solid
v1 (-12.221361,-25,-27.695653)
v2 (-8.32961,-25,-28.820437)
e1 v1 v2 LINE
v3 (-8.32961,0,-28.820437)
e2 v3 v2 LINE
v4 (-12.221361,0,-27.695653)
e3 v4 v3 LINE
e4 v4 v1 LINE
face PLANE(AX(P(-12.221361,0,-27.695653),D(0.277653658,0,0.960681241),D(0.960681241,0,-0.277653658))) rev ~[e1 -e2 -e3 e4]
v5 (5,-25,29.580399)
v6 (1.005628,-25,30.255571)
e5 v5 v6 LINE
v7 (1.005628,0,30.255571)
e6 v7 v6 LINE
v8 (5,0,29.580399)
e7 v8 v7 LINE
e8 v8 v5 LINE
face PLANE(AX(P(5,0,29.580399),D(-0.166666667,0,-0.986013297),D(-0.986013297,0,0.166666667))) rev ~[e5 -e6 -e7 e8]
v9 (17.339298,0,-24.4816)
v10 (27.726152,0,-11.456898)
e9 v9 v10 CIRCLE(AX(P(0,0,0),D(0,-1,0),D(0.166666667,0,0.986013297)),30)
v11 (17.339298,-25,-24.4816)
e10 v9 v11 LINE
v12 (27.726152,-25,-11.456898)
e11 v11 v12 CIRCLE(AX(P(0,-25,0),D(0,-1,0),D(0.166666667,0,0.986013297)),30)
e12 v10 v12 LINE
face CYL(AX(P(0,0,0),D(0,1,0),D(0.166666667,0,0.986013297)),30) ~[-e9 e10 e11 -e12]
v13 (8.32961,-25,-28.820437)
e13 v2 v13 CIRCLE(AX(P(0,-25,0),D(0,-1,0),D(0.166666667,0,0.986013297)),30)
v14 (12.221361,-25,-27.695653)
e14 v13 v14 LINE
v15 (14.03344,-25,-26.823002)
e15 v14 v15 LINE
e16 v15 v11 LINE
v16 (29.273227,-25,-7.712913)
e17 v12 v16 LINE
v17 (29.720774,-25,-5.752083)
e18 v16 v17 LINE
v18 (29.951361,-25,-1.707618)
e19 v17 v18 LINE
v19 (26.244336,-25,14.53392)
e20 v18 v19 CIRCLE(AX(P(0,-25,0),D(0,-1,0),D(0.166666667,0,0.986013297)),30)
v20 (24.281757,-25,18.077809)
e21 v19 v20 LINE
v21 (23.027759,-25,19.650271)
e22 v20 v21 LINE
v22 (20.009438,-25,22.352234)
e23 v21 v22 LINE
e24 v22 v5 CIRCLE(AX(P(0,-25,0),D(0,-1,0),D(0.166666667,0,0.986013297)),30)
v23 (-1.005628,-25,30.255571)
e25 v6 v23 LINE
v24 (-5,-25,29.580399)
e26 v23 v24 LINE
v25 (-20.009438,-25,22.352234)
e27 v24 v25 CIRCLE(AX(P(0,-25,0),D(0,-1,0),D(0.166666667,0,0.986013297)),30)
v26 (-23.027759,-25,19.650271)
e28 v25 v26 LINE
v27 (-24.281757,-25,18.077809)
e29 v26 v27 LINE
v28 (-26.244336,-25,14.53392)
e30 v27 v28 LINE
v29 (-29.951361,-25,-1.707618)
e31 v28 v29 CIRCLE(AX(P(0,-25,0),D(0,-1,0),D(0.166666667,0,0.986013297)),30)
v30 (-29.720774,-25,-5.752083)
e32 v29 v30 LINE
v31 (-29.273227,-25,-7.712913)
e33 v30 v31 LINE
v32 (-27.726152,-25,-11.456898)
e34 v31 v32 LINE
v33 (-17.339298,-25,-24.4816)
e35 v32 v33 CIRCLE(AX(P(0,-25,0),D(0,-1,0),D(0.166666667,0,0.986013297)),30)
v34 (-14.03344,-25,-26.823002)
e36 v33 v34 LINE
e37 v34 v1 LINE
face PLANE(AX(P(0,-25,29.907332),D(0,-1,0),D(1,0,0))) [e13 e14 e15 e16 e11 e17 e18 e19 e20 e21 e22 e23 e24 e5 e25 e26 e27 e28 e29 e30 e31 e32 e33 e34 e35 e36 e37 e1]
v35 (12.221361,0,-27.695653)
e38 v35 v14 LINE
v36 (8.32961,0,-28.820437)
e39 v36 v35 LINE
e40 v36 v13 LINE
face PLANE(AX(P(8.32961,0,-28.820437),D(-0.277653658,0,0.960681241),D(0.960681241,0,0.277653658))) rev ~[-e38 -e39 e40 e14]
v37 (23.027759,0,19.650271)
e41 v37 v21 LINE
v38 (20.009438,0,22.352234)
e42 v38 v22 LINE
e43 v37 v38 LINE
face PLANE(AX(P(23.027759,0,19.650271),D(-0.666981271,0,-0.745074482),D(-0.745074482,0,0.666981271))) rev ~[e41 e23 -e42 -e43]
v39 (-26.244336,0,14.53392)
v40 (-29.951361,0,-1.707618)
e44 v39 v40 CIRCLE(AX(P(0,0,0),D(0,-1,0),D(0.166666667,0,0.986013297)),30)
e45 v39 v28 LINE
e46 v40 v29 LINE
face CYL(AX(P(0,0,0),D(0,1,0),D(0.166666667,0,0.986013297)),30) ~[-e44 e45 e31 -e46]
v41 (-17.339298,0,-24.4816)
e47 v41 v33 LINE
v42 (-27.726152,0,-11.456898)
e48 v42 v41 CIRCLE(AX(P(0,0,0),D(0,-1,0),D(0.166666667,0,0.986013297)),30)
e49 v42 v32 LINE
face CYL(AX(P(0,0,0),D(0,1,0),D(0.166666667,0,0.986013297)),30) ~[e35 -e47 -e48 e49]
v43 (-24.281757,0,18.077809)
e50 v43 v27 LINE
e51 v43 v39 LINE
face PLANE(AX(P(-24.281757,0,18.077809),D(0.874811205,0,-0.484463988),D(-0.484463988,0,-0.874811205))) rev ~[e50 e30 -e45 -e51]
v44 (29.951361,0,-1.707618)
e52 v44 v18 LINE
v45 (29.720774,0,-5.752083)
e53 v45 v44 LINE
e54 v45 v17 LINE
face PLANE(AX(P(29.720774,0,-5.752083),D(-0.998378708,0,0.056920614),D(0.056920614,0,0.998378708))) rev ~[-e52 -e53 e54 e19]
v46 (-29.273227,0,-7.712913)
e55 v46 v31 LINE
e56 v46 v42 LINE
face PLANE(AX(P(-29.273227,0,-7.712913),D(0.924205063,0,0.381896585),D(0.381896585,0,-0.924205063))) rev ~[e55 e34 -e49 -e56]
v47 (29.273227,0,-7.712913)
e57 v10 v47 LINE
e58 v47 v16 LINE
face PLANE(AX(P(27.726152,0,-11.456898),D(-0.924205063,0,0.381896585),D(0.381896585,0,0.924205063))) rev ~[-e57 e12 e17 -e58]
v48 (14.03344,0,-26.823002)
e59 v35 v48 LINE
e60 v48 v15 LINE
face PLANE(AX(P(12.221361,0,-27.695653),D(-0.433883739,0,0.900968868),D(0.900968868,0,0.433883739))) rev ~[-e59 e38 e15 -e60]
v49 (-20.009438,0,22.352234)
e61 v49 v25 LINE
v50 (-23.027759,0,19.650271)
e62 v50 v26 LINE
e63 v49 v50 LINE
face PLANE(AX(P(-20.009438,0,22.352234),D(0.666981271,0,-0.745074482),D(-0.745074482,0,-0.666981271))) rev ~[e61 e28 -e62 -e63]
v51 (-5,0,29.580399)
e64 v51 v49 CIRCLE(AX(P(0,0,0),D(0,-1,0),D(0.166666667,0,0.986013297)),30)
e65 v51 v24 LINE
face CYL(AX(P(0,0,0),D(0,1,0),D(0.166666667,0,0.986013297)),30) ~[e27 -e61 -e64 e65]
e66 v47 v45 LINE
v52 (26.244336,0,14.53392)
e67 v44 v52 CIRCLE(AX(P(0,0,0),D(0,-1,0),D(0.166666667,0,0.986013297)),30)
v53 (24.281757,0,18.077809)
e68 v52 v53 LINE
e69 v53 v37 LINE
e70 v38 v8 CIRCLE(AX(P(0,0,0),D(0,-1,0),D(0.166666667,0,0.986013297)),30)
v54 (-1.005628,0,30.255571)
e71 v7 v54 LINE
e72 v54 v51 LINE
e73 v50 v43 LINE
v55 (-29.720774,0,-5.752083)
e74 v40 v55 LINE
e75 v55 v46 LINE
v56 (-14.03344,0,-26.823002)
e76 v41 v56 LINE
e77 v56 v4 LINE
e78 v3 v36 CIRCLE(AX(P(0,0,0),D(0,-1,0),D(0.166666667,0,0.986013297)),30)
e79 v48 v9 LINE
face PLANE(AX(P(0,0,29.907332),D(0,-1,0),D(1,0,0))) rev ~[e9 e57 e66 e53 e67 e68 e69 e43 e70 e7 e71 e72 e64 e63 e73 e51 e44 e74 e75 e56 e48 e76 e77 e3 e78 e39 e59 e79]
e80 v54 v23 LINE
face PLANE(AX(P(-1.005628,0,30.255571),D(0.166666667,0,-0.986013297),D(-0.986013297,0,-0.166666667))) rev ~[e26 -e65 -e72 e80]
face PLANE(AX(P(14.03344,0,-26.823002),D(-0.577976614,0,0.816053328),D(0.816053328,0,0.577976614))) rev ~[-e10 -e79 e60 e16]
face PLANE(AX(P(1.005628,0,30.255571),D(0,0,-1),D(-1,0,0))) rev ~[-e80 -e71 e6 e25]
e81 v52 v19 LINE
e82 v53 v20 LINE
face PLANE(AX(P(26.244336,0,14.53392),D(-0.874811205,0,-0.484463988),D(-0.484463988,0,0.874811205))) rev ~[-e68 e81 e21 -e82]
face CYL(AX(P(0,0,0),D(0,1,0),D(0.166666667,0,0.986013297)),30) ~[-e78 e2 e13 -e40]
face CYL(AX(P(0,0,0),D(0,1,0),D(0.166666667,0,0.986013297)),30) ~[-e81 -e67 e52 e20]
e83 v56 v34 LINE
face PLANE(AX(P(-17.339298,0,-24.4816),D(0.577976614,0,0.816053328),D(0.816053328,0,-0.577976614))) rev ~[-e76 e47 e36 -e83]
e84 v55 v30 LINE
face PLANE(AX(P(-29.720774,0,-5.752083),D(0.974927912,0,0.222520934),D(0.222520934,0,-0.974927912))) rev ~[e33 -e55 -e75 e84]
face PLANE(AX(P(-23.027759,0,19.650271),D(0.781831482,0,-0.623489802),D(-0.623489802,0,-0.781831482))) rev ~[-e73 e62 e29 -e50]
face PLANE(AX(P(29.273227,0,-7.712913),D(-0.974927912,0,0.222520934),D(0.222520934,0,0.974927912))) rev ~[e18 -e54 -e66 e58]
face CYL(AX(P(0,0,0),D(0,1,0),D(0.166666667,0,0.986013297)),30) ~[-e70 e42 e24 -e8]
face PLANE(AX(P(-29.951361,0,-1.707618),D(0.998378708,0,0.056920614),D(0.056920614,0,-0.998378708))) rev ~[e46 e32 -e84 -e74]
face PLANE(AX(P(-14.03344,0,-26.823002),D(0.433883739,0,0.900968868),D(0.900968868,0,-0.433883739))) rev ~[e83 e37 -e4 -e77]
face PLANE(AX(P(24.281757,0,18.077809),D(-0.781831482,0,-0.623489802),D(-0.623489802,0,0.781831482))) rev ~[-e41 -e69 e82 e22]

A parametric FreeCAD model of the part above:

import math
import FreeCAD as App
import Part
import Sketcher

V = App.Vector
Q = App.Units.Quantity

doc = App.newDocument("Part")
params = doc.addObject("Spreadsheet::Sheet", "Params")
for row, (alias, value) in enumerate([
    ("sketch1_diameter", "60 mm"),
    ("pad1_length", "25 mm"),
    ("sketch2_radius", "30 mm"),
    ("pad2_length", "25 mm"),
], start=1):
    params.set(f"A{row}", alias)
    params.set(f"B{row}", "=" + value)
    params.setAlias(f"B{row}", alias)

body = doc.addObject("PartDesign::Body", "Body")

sketch1 = body.newObject("Sketcher::SketchObject", "Sketch")
sketch1.AttachmentSupport = (doc.getObject("XZ_Plane"), [""])
sketch1.MapMode = "FlatFace"
sketch1.addGeometry(Part.Circle(V(0, 0, 0), V(0, 0, 1), 30), False)
sketch1.addConstraint([
    Sketcher.Constraint("Coincident", 0, 3, -1, 1),
    Sketcher.Constraint("Diameter", 0, Q("60 mm")),
])
sketch1.setExpression("Constraints[1]", "Params.sketch1_diameter")
pad1 = body.newObject("PartDesign::Pad", "Pad")
pad1.Profile = sketch1
pad1.setExpression("Length", "Params.pad1_length")
body2 = doc.addObject("PartDesign::Body", "Body001")

sketch2 = body2.newObject("Sketcher::SketchObject", "Sketch001")
sketch2.AttachmentSupport = (doc.getObject("XZ_Plane001"), [""])
sketch2.MapMode = "FlatFace"
sketch2.addGeometry([
    Part.ArcOfCircle(Part.Circle(V(0, 0, 0), V(0, 0, 1), 30), math.radians(80.41), math.radians(99.59)),
    Part.LineSegment(V(5, 29.6, 0), V(1, 30.3, 0)),
    Part.LineSegment(V(1, 30.3, 0), V(-1, 30.3, 0)),
    Part.LineSegment(V(-1, 30.3, 0), V(-5, 29.6, 0)),
], False)
sketch2.addConstraint([
    Sketcher.Constraint("Tangent", 0, 1, 1, 1),
    Sketcher.Constraint("Coincident", 1, 2, 2, 1),
    Sketcher.Constraint("Coincident", 2, 2, 3, 1),
    Sketcher.Constraint("Tangent", 3, 2, 0, 2),
    Sketcher.Constraint("Horizontal", 2),
    Sketcher.Constraint("Coincident", 0, 3, -1, 1),
    Sketcher.Constraint("Horizontal", 0, 1, 3, 2),
    Sketcher.Constraint("Radius", 0, Q("30 mm")),
    Sketcher.Constraint("DistanceX", -1, 1, 0, 1, Q("5 mm")),
    Sketcher.Constraint("DistanceX", 2, 2, 2, 1, Q("2.011256 mm")),
])
sketch2.setExpression("Constraints[7]", "Params.sketch2_radius")
pad2 = body2.newObject("PartDesign::Pad", "Pad001")
pad2.Profile = sketch2
pad2.setExpression("Length", "Params.pad2_length")
body3 = doc.addObject("PartDesign::Body", "Body002")
doc.recompute()

body3.BaseFeature = body
doc.recompute()

body4 = doc.addObject("PartDesign::Body", "Body003")
body4.BaseFeature = body2
boolean = body3.newObject("PartDesign::Boolean", "Boolean")
boolean.Type = "Fuse"
boolean.addObjects([body4])
doc.recompute()

body5 = doc.addObject("PartDesign::Body", "Body004")
body5.BaseFeature = body2
body5.Placement = App.Placement(V(0, 0, 0), App.Rotation(V(0, 1, 0), 51.428571))
boolean2 = body3.newObject("PartDesign::Boolean", "Boolean001")
boolean2.Type = "Fuse"
boolean2.addObjects([body5])
doc.recompute()

body6 = doc.addObject("PartDesign::Body", "Body005")
body6.BaseFeature = body
body6.Placement = App.Placement(V(0, 0, 0), App.Rotation(V(0, 1, 0), 51.428571))
boolean3 = body3.newObject("PartDesign::Boolean", "Boolean002")
boolean3.Type = "Fuse"
boolean3.addObjects([body6])
doc.recompute()

body7 = doc.addObject("PartDesign::Body", "Body006")
body7.BaseFeature = body2
body7.Placement = App.Placement(V(0, 0, 0), App.Rotation(V(0, 1, 0), 102.857143))
boolean4 = body3.newObject("PartDesign::Boolean", "Boolean003")
boolean4.Type = "Fuse"
boolean4.addObjects([body7])
doc.recompute()

body8 = doc.addObject("PartDesign::Body", "Body007")
body8.BaseFeature = body
body8.Placement = App.Placement(V(0, 0, 0), App.Rotation(V(0, 1, 0), 102.857143))
boolean5 = body3.newObject("PartDesign::Boolean", "Boolean004")
boolean5.Type = "Fuse"
boolean5.addObjects([body8])
doc.recompute()

body9 = doc.addObject("PartDesign::Body", "Body008")
body9.BaseFeature = body2
body9.Placement = App.Placement(V(0, 0, 0), App.Rotation(V(0, 1, 0), 154.285714))
boolean6 = body3.newObject("PartDesign::Boolean", "Boolean005")
boolean6.Type = "Fuse"
boolean6.addObjects([body9])
doc.recompute()

body10 = doc.addObject("PartDesign::Body", "Body009")
body10.BaseFeature = body
body10.Placement = App.Placement(V(0, 0, 0), App.Rotation(V(0, 1, 0), 154.285714))
boolean7 = body3.newObject("PartDesign::Boolean", "Boolean006")
boolean7.Type = "Fuse"
boolean7.addObjects([body10])
doc.recompute()

body11 = doc.addObject("PartDesign::Body", "Body010")
body11.BaseFeature = body2
body11.Placement = App.Placement(V(0, 0, 0), App.Rotation(V(0, 1, 0), 205.714286))
boolean8 = body3.newObject("PartDesign::Boolean", "Boolean007")
boolean8.Type = "Fuse"
boolean8.addObjects([body11])
doc.recompute()

body12 = doc.addObject("PartDesign::Body", "Body011")
body12.BaseFeature = body
body12.Placement = App.Placement(V(0, 0, 0), App.Rotation(V(0, 1, 0), 205.714286))
boolean9 = body3.newObject("PartDesign::Boolean", "Boolean008")
boolean9.Type = "Fuse"
boolean9.addObjects([body12])
doc.recompute()

body13 = doc.addObject("PartDesign::Body", "Body012")
body13.BaseFeature = body2
body13.Placement = App.Placement(V(0, 0, 0), App.Rotation(V(0, 1, 0), 257.142857))
boolean10 = body3.newObject("PartDesign::Boolean", "Boolean009")
boolean10.Type = "Fuse"
boolean10.addObjects([body13])
doc.recompute()

body14 = doc.addObject("PartDesign::Body", "Body013")
body14.BaseFeature = body
body14.Placement = App.Placement(V(0, 0, 0), App.Rotation(V(0, 1, 0), 257.142857))
boolean11 = body3.newObject("PartDesign::Boolean", "Boolean010")
boolean11.Type = "Fuse"
boolean11.addObjects([body14])
doc.recompute()

body2.Placement = App.Placement(V(0, 0, 0), App.Rotation(V(0, 1, 0), 308.571429))
boolean12 = body3.newObject("PartDesign::Boolean", "Boolean011")
boolean12.Type = "Fuse"
boolean12.addObjects([body2])
doc.recompute()

body.Placement = App.Placement(V(0, 0, 0), App.Rotation(V(0, 1, 0), 308.571429))
boolean13 = body3.newObject("PartDesign::Boolean", "Boolean012")
boolean13.Type = "Fuse"
boolean13.addObjects([body])

doc.recompute()
